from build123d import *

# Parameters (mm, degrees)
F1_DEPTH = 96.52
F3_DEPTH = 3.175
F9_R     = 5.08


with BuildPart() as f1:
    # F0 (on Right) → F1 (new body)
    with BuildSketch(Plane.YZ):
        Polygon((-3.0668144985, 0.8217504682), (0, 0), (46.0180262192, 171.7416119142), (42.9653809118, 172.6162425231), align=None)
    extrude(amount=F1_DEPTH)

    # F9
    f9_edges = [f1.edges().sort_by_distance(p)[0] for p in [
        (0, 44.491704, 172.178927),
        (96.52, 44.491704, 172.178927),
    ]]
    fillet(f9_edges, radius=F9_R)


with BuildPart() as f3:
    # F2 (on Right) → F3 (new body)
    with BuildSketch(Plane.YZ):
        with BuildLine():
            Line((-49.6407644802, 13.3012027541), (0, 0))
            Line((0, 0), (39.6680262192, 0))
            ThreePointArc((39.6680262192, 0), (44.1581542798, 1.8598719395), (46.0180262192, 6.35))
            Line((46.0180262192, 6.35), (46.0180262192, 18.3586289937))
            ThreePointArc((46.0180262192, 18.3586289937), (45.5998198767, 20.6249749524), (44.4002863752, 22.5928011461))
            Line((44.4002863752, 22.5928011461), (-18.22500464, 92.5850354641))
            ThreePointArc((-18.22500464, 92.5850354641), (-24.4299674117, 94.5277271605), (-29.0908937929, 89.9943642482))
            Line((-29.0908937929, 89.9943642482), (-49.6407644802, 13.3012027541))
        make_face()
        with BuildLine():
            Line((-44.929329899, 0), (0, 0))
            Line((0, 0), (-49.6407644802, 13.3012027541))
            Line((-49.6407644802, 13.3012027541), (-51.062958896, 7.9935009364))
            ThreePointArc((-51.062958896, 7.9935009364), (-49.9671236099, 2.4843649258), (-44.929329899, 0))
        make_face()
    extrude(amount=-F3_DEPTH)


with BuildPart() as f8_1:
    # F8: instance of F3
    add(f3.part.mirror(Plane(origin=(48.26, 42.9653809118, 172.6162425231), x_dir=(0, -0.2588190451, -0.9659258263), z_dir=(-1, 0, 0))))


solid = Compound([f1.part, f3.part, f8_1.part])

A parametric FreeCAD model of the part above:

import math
import FreeCAD as App
import Part
import Sketcher
Q = App.Units.Quantity


def edges_at(feature, points):
    """Names of the edges that pass closest to the given points."""
    edges = feature.Shape.Edges
    near = lambda p: min(range(len(edges)), key=lambda i: edges[i].distToShape(Part.Vertex(*p))[0])
    return sorted({f"Edge{near(p) + 1}" for p in points})


def add_polygon(sketch, points):
    """Adds a closed chain of lines whose ends are joined by coincident constraints."""
    first, n = sketch.GeometryCount, len(points)
    for a, b in zip(points, points[1:] + points[:1]):
        sketch.addGeometry(Part.LineSegment(App.Vector(*a, 0), App.Vector(*b, 0)), False)
    for i in range(n):
        sketch.addConstraint(Sketcher.Constraint("Coincident", first + i, 2, first + (i + 1) % n, 1))

doc = App.newDocument("Part")
body = doc.addObject("PartDesign::Body", "Body")

# Sketch on YZ plane
sketch1 = doc.addObject("Sketcher::SketchObject", "Sketch")
body.addObject(sketch1)
sketch1.AttachmentSupport = (doc.YZ_Plane, [""])
sketch1.MapMode = "FlatFace"
add_polygon(sketch1, [(-3.1, 0.8), (0, 0), (46, 171.7), (43, 172.6)])  # lines 0-3
sketch1.addConstraint(Sketcher.Constraint("Coincident", 0, 2, -1, 1))
sketch1.addConstraint(Sketcher.Constraint("Perpendicular", 0, 1))
sketch1.addConstraint(Sketcher.Constraint("Parallel", 1, 3))
sketch1.addConstraint(Sketcher.Constraint("Distance", 1, Q("7 in")))
sketch1.addConstraint(Sketcher.Constraint("Angle", 0, Q("-15 deg")))
sketch1.addConstraint(Sketcher.Constraint("Distance", 0, Q("0.125 in")))
sketch1.addConstraint(Sketcher.Constraint("Distance", 2, 3.175472))
pad1 = doc.addObject("PartDesign::Pad", "Pad")
body.addObject(pad1)
pad1.Profile = sketch1
pad1.Length = Q("3.8 in")
doc.recompute()

fillet = doc.addObject("PartDesign::Fillet", "Fillet")
body.addObject(fillet)
fillet.Base = (pad1, edges_at(pad1, [(0, 44.492, 172.179), (96.52, 44.492, 172.179)]))
fillet.Radius = Q("0.2 in")
body2 = doc.addObject("PartDesign::Body", "Body001")

# Sketch on YZ plane
sketch2 = doc.addObject("Sketcher::SketchObject", "Sketch001")
body2.addObject(sketch2)
sketch2.AttachmentSupport = (doc.getObject("YZ_Plane001"), [""])
sketch2.MapMode = "FlatFace"
sketch2.addGeometry(Part.ArcOfCircle(Part.Circle(App.Vector(39.7, 6.3, 0), App.Vector(0, 0, 1), 6.3), math.radians(-90), math.radians(0)), False)
sketch2.addGeometry(Part.LineSegment(App.Vector(46, 6.3, 0), App.Vector(46, 18.4, 0)), False)
sketch2.addGeometry(Part.ArcOfCircle(Part.Circle(App.Vector(39.7, 18.4, 0), App.Vector(0, 0, 1), 6.3), math.radians(0), math.radians(42)), False)
sketch2.addGeometry(Part.LineSegment(App.Vector(44.4, 22.6, 0), App.Vector(-18.2, 92.6, 0)), False)
sketch2.addGeometry(Part.ArcOfCircle(Part.Circle(App.Vector(-23, 88.4, 0), App.Vector(0, 0, 1), 6.3), math.radians(42), math.radians(165)), False)
sketch2.addGeometry(Part.LineSegment(App.Vector(-29.1, 90, 0), App.Vector(-49.6, 13.3, 0)), False)
sketch2.addGeometry(Part.LineSegment(App.Vector(-49.6, 13.3, 0), App.Vector(-51.1, 8, 0)), False)
sketch2.addGeometry(Part.ArcOfCircle(Part.Circle(App.Vector(-44.9, 6.3, 0), App.Vector(0, 0, 1), 6.3), math.radians(165), math.radians(270)), False)
sketch2.addGeometry(Part.LineSegment(App.Vector(-44.9, 0, 0), App.Vector(39.7, 0, 0)), False)
sketch2.addConstraint(Sketcher.Constraint("Tangent", 0, 2, 1, 1))
sketch2.addConstraint(Sketcher.Constraint("Tangent", 1, 2, 2, 1))
sketch2.addConstraint(Sketcher.Constraint("Tangent", 2, 2, 3, 1))
sketch2.addConstraint(Sketcher.Constraint("Tangent", 3, 2, 4, 1))
sketch2.addConstraint(Sketcher.Constraint("Tangent", 4, 2, 5, 1))
sketch2.addConstraint(Sketcher.Constraint("Coincident", 5, 2, 6, 1))
sketch2.addConstraint(Sketcher.Constraint("Tangent", 6, 2, 7, 1))
sketch2.addConstraint(Sketcher.Constraint("Tangent", 7, 2, 8, 1))
sketch2.addConstraint(Sketcher.Constraint("Tangent", 8, 2, 0, 1))
sketch2.addConstraint(Sketcher.Constraint("Vertical", 1))
sketch2.addConstraint(Sketcher.Constraint("Horizontal", 8))
sketch2.addConstraint(Sketcher.Constraint("Equal", 0, 2))
sketch2.addConstraint(Sketcher.Constraint("Equal", 2, 4))
sketch2.addConstraint(Sketcher.Constraint("Equal", 4, 7))
sketch2.addConstraint(Sketcher.Constraint("PointOnObject", 7, 2, -1))
sketch2.addConstraint(Sketcher.Constraint("Parallel", 5, 6))
sketch2.addConstraint(Sketcher.Constraint("Radius", 0, Q("0.25 in")))
sketch2.addConstraint(Sketcher.Constraint("Angle", 5, Q("-105 deg")))
sketch2.addConstraint(Sketcher.Constraint("DistanceY", 1, 1, 1, 2, 12.008629))
sketch2.addConstraint(Sketcher.Constraint("DistanceY", -1, 1, 2, 2, 22.592801))
sketch2.addConstraint(Sketcher.Constraint("DistanceX", 5, 2, 4, 3, 26.6835))
sketch2.addConstraint(Sketcher.Constraint("DistanceY", 6, 2, 5, 2, 5.307702))
sketch2.addConstraint(Sketcher.Constraint("DistanceX", 7, 3, -1, 1, 44.92933))
pad2 = doc.addObject("PartDesign::Pad", "Pad001")
body2.addObject(pad2)
pad2.Profile = sketch2
pad2.Length = Q("0.125 in")
pad2.Reversed = True
body3 = doc.addObject("PartDesign::Body", "Body002")
doc.recompute()

mirroring = doc.addObject("Part::Mirroring", "Mirroring")
mirroring.Source = body2
mirroring.Base = App.Vector(48.26, 42.965381, 172.616243)
mirroring.Normal = App.Vector(-1, 0, 0)
body3.BaseFeature = mirroring
doc.recompute()
mirroring.Visibility = False

doc.recompute()
